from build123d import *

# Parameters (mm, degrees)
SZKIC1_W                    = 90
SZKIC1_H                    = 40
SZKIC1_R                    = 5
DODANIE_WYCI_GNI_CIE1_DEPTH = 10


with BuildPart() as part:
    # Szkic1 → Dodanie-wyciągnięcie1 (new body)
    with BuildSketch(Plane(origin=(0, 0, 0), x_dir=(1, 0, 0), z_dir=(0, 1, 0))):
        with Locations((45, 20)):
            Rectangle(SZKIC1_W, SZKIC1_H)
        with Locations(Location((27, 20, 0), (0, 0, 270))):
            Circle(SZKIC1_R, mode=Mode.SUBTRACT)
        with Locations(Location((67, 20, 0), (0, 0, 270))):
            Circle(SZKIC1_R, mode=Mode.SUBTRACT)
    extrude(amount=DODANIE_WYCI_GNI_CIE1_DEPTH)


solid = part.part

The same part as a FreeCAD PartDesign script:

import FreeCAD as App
import Part
import Sketcher

V = App.Vector


def add_polygon(sketch, points):
    """Adds a closed chain of lines whose ends are joined by coincident constraints."""
    first, n = sketch.GeometryCount, len(points)
    for a, b in zip(points, points[1:] + points[:1]):
        sketch.addGeometry(Part.LineSegment(App.Vector(*a, 0), App.Vector(*b, 0)), False)
    for i in range(n):
        sketch.addConstraint(Sketcher.Constraint("Coincident", first + i, 2, first + (i + 1) % n, 1))

doc = App.newDocument("Part")
params = doc.addObject("Spreadsheet::Sheet", "Params")
for row, (alias, value) in enumerate([
    ("sketch1_diameter", "10 mm"),
    ("sketch1_width", "90 mm"),
    ("sketch1_height", "40 mm"),
    ("pad1_length", "10 mm"),
], start=1):
    params.set(f"A{row}", alias)
    params.set(f"B{row}", "=" + value)
    params.setAlias(f"B{row}", alias)

body = doc.addObject("PartDesign::Body", "Body")

sketch1 = body.newObject("Sketcher::SketchObject", "Sketch")
sketch1.AttachmentSupport = (doc.getObject("XZ_Plane"), [""])
sketch1.MapMode = "FlatFace"
add_polygon(sketch1, [(0, -40), (0, 0), (90, 0), (90, -40)])
sketch1.addGeometry(Part.Circle(V(27, -20, 0), V(0, 0, 1), 5), False)
sketch1.addGeometry(Part.Circle(V(67, -20, 0), V(0, 0, 1), 5), False)
sketch1.addConstraint(Sketcher.Constraint("Vertical", 0))
sketch1.addConstraint(Sketcher.Constraint("Horizontal", 1))
sketch1.addConstraint(Sketcher.Constraint("Vertical", 2))
sketch1.addConstraint(Sketcher.Constraint("Horizontal", 3))
sketch1.addConstraint(Sketcher.Constraint("Coincident", 0, 2, -1, 1))
sketch1.addConstraint(Sketcher.Constraint("Equal", 4, 5))
sketch1.addConstraint(Sketcher.Constraint("Horizontal", 4, 3, 5, 3))
sketch1.addConstraint(Sketcher.Constraint("Diameter", 4, 10.0))
sketch1.addConstraint(Sketcher.Constraint("DistanceX", 1, 1, 1, 2, 90.0))
sketch1.addConstraint(Sketcher.Constraint("DistanceY", 0, 1, 0, 2, 40.0))
sketch1.addConstraint(Sketcher.Constraint("DistanceX", -1, 1, 4, 3, 27.0))
sketch1.addConstraint(Sketcher.Constraint("DistanceY", 4, 3, -1, 1, 20.0))
sketch1.addConstraint(Sketcher.Constraint("DistanceX", -1, 1, 5, 3, 67.0))
sketch1.setExpression("Constraints[11]", "Params.sketch1_diameter")
sketch1.setExpression("Constraints[12]", "Params.sketch1_width")
sketch1.setExpression("Constraints[13]", "Params.sketch1_height")
pad1 = body.newObject("PartDesign::Pad", "Pad")
pad1.Profile = sketch1
pad1.setExpression("Length", "Params.pad1_length")
pad1.Reversed = True

doc.recompute()
